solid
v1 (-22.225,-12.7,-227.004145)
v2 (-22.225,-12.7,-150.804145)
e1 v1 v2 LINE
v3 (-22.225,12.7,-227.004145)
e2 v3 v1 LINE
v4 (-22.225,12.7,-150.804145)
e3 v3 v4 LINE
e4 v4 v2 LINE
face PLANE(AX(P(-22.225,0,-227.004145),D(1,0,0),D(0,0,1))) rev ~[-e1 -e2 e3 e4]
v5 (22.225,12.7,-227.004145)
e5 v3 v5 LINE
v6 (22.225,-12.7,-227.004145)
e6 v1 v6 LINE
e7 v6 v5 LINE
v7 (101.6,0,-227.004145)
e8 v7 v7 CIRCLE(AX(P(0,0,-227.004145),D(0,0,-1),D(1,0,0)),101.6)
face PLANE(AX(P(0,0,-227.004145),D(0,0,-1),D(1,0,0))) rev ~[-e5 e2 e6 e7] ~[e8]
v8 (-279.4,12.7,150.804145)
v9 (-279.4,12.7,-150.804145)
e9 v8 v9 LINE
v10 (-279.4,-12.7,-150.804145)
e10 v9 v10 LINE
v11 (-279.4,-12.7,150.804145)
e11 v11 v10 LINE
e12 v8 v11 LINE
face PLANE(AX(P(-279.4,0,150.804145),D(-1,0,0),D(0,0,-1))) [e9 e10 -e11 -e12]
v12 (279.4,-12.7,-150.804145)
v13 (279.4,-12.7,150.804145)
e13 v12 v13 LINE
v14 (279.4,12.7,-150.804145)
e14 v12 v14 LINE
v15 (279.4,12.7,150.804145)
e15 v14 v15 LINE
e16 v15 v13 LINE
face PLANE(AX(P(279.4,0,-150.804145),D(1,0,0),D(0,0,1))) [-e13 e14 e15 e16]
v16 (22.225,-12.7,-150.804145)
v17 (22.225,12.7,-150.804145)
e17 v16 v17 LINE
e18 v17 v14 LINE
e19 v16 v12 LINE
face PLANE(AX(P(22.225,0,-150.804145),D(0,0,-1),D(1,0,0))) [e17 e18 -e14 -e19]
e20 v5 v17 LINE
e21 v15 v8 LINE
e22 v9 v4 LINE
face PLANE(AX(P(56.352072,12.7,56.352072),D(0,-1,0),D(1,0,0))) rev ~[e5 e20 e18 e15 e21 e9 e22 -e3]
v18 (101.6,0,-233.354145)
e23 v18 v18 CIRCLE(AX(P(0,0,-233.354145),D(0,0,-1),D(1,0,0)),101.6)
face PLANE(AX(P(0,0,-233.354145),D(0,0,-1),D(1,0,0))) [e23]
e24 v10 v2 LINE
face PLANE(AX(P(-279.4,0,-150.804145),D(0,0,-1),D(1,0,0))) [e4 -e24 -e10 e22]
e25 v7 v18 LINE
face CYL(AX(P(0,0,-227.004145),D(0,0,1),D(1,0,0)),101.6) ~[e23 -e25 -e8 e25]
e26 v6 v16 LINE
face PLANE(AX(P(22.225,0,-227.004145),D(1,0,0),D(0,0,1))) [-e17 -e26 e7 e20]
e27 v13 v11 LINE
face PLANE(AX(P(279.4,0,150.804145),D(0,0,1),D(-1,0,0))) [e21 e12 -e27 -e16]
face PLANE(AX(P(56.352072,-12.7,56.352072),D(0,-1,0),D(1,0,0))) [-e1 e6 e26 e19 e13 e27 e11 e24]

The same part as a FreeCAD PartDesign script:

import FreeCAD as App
import Part
import Sketcher
from FreeCAD import Vector
Q = App.Units.Quantity

doc = App.newDocument("Part")
body = doc.addObject("PartDesign::Body", "Body")

# Sketch on XZ plane
sketch1 = body.newObject("Sketcher::SketchObject", "Sketch")
sketch1.AttachmentSupport = (doc.getObject("XZ_Plane"), [""])
sketch1.MapMode = "FlatFace"
sketch1.addGeometry([
    Part.LineSegment(Vector(279, -151, 0), Vector(279, 151, 0)),  # 0
    Part.LineSegment(Vector(279, 151, 0), Vector(-279, 151, 0)),  # 1
    Part.LineSegment(Vector(-279, 151, 0), Vector(-279, -151, 0)),  # 2
    Part.LineSegment(Vector(-279, -151, 0), Vector(-22, -151, 0)),  # 3
    Part.LineSegment(Vector(-22, -151, 0), Vector(-22, -227, 0)),  # 4
    Part.LineSegment(Vector(-22, -227, 0), Vector(22, -227, 0)),  # 5
    Part.LineSegment(Vector(22, -227, 0), Vector(22, -151, 0)),  # 6
    Part.LineSegment(Vector(22, -151, 0), Vector(279, -151, 0)),  # 7
], False)
sketch1.addConstraint([
    Sketcher.Constraint("Coincident", 0, 2, 1, 1),
    Sketcher.Constraint("Coincident", 1, 2, 2, 1),
    Sketcher.Constraint("Coincident", 2, 2, 3, 1),
    Sketcher.Constraint("Coincident", 3, 2, 4, 1),
    Sketcher.Constraint("Coincident", 4, 2, 5, 1),
    Sketcher.Constraint("Coincident", 5, 2, 6, 1),
    Sketcher.Constraint("Coincident", 6, 2, 7, 1),
    Sketcher.Constraint("Coincident", 7, 2, 0, 1),
    Sketcher.Constraint("Vertical", 0),
    Sketcher.Constraint("Horizontal", 1),
    Sketcher.Constraint("Vertical", 2),
    Sketcher.Constraint("Horizontal", 3),
    Sketcher.Constraint("Vertical", 4),
    Sketcher.Constraint("Horizontal", 5),
    Sketcher.Constraint("Vertical", 6),
    Sketcher.Constraint("Horizontal", 7),
    Sketcher.Constraint("Symmetric", 0, 2, 2, 2, -1, 1),
    Sketcher.Constraint("Symmetric", 3, 2, 6, 2, -2),
    Sketcher.Constraint("DistanceX", 1, 2, 1, 1, Q("22 in")),
    Sketcher.Constraint("DistanceY", 4, 2, 4, 1, Q("3 in")),
    Sketcher.Constraint("DistanceX", 5, 1, 5, 2, Q("1.75 in")),
    Sketcher.Constraint("DistanceY", 0, 1, 0, 2, Q("301.60829 mm")),
])
pad1 = body.newObject("PartDesign::Pad", "Pad")
pad1.Profile = sketch1
pad1.Length = Q("1 in")
pad1.Midplane = True

# Sketch on XY plane
sketch2 = body.newObject("Sketcher::SketchObject", "Sketch001")
sketch2.AttachmentSupport = (doc.getObject("XY_Plane"), [""])
sketch2.MapMode = "FlatFace"
sketch2.AttachmentOffset = App.Placement(Vector(0, 0, -227.004145), App.Rotation())
sketch2.addGeometry(Part.Circle(Vector(0, 0, 0), Vector(0, 0, 1), 102), False)
sketch2.addConstraint([
    Sketcher.Constraint("Coincident", 0, 3, -1, 1),
    Sketcher.Constraint("Diameter", 0, Q("8 in")),
])
pad2 = body.newObject("PartDesign::Pad", "Pad001")
pad2.Profile = sketch2
pad2.Length = Q("0.25 in")
pad2.Reversed = True

doc.recompute()
